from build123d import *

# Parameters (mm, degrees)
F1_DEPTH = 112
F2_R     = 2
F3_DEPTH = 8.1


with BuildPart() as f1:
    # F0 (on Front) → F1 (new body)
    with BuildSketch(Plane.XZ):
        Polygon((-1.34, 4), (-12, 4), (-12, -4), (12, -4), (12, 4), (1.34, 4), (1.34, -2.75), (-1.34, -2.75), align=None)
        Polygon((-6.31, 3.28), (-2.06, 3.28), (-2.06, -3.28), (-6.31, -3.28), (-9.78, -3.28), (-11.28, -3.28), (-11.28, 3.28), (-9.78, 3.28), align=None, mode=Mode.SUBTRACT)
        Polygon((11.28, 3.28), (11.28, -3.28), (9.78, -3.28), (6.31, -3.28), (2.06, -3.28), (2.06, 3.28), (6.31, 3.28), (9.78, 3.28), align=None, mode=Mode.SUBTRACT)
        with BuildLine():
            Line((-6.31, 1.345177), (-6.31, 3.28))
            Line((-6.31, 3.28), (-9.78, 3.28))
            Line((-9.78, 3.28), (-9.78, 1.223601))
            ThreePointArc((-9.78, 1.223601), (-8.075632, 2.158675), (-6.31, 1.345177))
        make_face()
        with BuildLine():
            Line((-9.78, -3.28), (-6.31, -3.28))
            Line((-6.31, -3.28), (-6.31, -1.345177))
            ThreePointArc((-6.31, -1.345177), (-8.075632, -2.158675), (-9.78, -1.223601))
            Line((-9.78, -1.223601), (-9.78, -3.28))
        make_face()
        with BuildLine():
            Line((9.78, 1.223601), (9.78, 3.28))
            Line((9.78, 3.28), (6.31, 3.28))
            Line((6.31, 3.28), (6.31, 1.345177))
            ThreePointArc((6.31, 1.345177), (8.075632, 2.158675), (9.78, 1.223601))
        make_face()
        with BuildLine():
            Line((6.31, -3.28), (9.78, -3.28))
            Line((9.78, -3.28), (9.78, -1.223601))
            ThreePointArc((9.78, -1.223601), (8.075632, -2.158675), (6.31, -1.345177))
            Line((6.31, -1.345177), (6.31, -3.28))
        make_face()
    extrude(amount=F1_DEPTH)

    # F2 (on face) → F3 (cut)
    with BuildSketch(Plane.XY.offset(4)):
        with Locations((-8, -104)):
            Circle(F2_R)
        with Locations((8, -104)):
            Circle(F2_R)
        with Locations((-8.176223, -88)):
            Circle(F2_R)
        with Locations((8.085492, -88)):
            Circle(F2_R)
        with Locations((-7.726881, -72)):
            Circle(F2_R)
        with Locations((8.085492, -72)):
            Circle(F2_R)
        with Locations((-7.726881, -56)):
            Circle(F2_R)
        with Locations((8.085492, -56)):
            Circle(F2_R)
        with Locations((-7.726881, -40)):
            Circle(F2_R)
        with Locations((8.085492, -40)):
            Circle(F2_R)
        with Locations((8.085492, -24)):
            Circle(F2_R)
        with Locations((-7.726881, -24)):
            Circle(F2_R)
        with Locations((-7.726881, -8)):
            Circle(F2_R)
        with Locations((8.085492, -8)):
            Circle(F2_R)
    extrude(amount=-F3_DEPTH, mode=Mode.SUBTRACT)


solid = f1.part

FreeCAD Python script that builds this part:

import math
import FreeCAD as App
import Part
import Sketcher
Q = App.Units.Quantity


def add_polygon(sketch, points):
    """Adds a closed chain of lines whose ends are joined by coincident constraints."""
    first, n = sketch.GeometryCount, len(points)
    for a, b in zip(points, points[1:] + points[:1]):
        sketch.addGeometry(Part.LineSegment(App.Vector(*a, 0), App.Vector(*b, 0)), False)
    for i in range(n):
        sketch.addConstraint(Sketcher.Constraint("Coincident", first + i, 2, first + (i + 1) % n, 1))

doc = App.newDocument("Part")
body = doc.addObject("PartDesign::Body", "Body")

sketch1 = body.newObject("Sketcher::SketchObject", "Sketch")
sketch1.AttachmentSupport = (doc.getObject("XZ_Plane"), [""])
sketch1.MapMode = "FlatFace"
add_polygon(sketch1, [(-1.3, 4), (-12, 4), (-12, -4), (12, -4), (12, 4), (1.3, 4), (1.3, -2.8), (-1.3, -2.8)])
sketch1.addGeometry(Part.LineSegment(App.Vector(-11.3, 3.3, 0), App.Vector(-9.8, 3.3, 0)), False)
sketch1.addGeometry(Part.LineSegment(App.Vector(-9.8, 3.3, 0), App.Vector(-9.8, 1.2, 0)), False)
sketch1.addGeometry(Part.ArcOfCircle(Part.Circle(App.Vector(-8, 0, 0), App.Vector(0, 0, 1), 2.2), math.radians(39), math.radians(145)), False)
sketch1.addGeometry(Part.LineSegment(App.Vector(-6.3, 1.3, 0), App.Vector(-6.3, 3.3, 0)), False)
sketch1.addGeometry(Part.LineSegment(App.Vector(-6.3, 3.3, 0), App.Vector(-2.1, 3.3, 0)), False)
sketch1.addGeometry(Part.LineSegment(App.Vector(-2.1, 3.3, 0), App.Vector(-2.1, -3.3, 0)), False)
sketch1.addGeometry(Part.LineSegment(App.Vector(-2.1, -3.3, 0), App.Vector(-6.3, -3.3, 0)), False)
sketch1.addGeometry(Part.LineSegment(App.Vector(-6.3, -3.3, 0), App.Vector(-6.3, -1.3, 0)), False)
sketch1.addGeometry(Part.ArcOfCircle(Part.Circle(App.Vector(-8, 0, 0), App.Vector(0, 0, 1), 2.2), math.radians(-145), math.radians(-39)), False)
sketch1.addGeometry(Part.LineSegment(App.Vector(-9.8, -1.2, 0), App.Vector(-9.8, -3.3, 0)), False)
sketch1.addGeometry(Part.LineSegment(App.Vector(-9.8, -3.3, 0), App.Vector(-11.3, -3.3, 0)), False)
sketch1.addGeometry(Part.LineSegment(App.Vector(-11.3, -3.3, 0), App.Vector(-11.3, 3.3, 0)), False)
sketch1.addGeometry(Part.LineSegment(App.Vector(2.1, 3.3, 0), App.Vector(6.3, 3.3, 0)), False)
sketch1.addGeometry(Part.LineSegment(App.Vector(6.3, 3.3, 0), App.Vector(6.3, 1.3, 0)), False)
sketch1.addGeometry(Part.ArcOfCircle(Part.Circle(App.Vector(8, 0, 0), App.Vector(0, 0, 1), 2.2), math.radians(35), math.radians(141)), False)
sketch1.addGeometry(Part.LineSegment(App.Vector(9.8, 1.2, 0), App.Vector(9.8, 3.3, 0)), False)
sketch1.addGeometry(Part.LineSegment(App.Vector(9.8, 3.3, 0), App.Vector(11.3, 3.3, 0)), False)
sketch1.addGeometry(Part.LineSegment(App.Vector(11.3, 3.3, 0), App.Vector(11.3, -3.3, 0)), False)
sketch1.addGeometry(Part.LineSegment(App.Vector(11.3, -3.3, 0), App.Vector(9.8, -3.3, 0)), False)
sketch1.addGeometry(Part.LineSegment(App.Vector(9.8, -3.3, 0), App.Vector(9.8, -1.2, 0)), False)
sketch1.addGeometry(Part.ArcOfCircle(Part.Circle(App.Vector(8, 0, 0), App.Vector(0, 0, 1), 2.2), math.radians(-141), math.radians(-35)), False)
sketch1.addGeometry(Part.LineSegment(App.Vector(6.3, -1.3, 0), App.Vector(6.3, -3.3, 0)), False)
sketch1.addGeometry(Part.LineSegment(App.Vector(6.3, -3.3, 0), App.Vector(2.1, -3.3, 0)), False)
sketch1.addGeometry(Part.LineSegment(App.Vector(2.1, -3.3, 0), App.Vector(2.1, 3.3, 0)), False)
sketch1.addConstraint([
    Sketcher.Constraint("Coincident", 8, 2, 9, 1),
    Sketcher.Constraint("Coincident", 9, 2, 10, 2),
    Sketcher.Constraint("Coincident", 10, 1, 11, 1),
    Sketcher.Constraint("Coincident", 11, 2, 12, 1),
    Sketcher.Constraint("Coincident", 12, 2, 13, 1),
    Sketcher.Constraint("Coincident", 13, 2, 14, 1),
    Sketcher.Constraint("Coincident", 14, 2, 15, 1),
    Sketcher.Constraint("Coincident", 15, 2, 16, 2),
    Sketcher.Constraint("Coincident", 16, 1, 17, 1),
    Sketcher.Constraint("Coincident", 17, 2, 18, 1),
    Sketcher.Constraint("Coincident", 18, 2, 19, 1),
    Sketcher.Constraint("Coincident", 19, 2, 8, 1),
    Sketcher.Constraint("Coincident", 20, 2, 21, 1),
    Sketcher.Constraint("Coincident", 21, 2, 22, 2),
    Sketcher.Constraint("Coincident", 22, 1, 23, 1),
    Sketcher.Constraint("Coincident", 23, 2, 24, 1),
    Sketcher.Constraint("Coincident", 24, 2, 25, 1),
    Sketcher.Constraint("Coincident", 25, 2, 26, 1),
    Sketcher.Constraint("Coincident", 26, 2, 27, 1),
    Sketcher.Constraint("Coincident", 27, 2, 28, 2),
    Sketcher.Constraint("Coincident", 28, 1, 29, 1),
    Sketcher.Constraint("Coincident", 29, 2, 30, 1),
    Sketcher.Constraint("Coincident", 30, 2, 31, 1),
    Sketcher.Constraint("Coincident", 31, 2, 20, 1),
    Sketcher.Constraint("Horizontal", 0),
    Sketcher.Constraint("Vertical", 1),
    Sketcher.Constraint("Horizontal", 2),
    Sketcher.Constraint("Vertical", 3),
    Sketcher.Constraint("Horizontal", 4),
    Sketcher.Constraint("Vertical", 5),
    Sketcher.Constraint("Horizontal", 6),
    Sketcher.Constraint("Vertical", 7),
    Sketcher.Constraint("Horizontal", 8),
    Sketcher.Constraint("Vertical", 9),
    Sketcher.Constraint("Vertical", 11),
    Sketcher.Constraint("Horizontal", 12),
    Sketcher.Constraint("Vertical", 13),
    Sketcher.Constraint("Horizontal", 14),
    Sketcher.Constraint("Vertical", 15),
    Sketcher.Constraint("Vertical", 17),
    Sketcher.Constraint("Horizontal", 18),
    Sketcher.Constraint("Vertical", 19),
    Sketcher.Constraint("Horizontal", 20),
    Sketcher.Constraint("Vertical", 21),
    Sketcher.Constraint("Vertical", 23),
    Sketcher.Constraint("Horizontal", 24),
    Sketcher.Constraint("Vertical", 25),
    Sketcher.Constraint("Horizontal", 26),
    Sketcher.Constraint("Vertical", 27),
    Sketcher.Constraint("Vertical", 29),
    Sketcher.Constraint("Horizontal", 30),
    Sketcher.Constraint("Vertical", 31),
    Sketcher.Constraint("Coincident", 16, 3, 10, 3),
    Sketcher.Constraint("Coincident", 28, 3, 22, 3),
    Sketcher.Constraint("Equal", 10, 16),
    Sketcher.Constraint("Equal", 16, 22),
    Sketcher.Constraint("Equal", 22, 28),
    Sketcher.Constraint("Symmetric", 10, 3, 22, 3, -1, 1),
    Sketcher.Constraint("Symmetric", 0, 2, 2, 2, -1, 1),
    Sketcher.Constraint("Symmetric", 14, 2, 20, 2, -1, 1),
    Sketcher.Constraint("Symmetric", 17, 2, 23, 2, -1, 1),
    Sketcher.Constraint("Symmetric", 19, 2, 25, 2, -1, 1),
    Sketcher.Constraint("Symmetric", 11, 2, 29, 2, -1, 1),
    Sketcher.Constraint("Symmetric", 4, 2, 7, 2, -2),
    Sketcher.Constraint("Symmetric", 11, 2, 20, 2, -2),
    Sketcher.Constraint("Symmetric", 9, 2, 22, 1, -2),
    Sketcher.Constraint("Symmetric", 17, 2, 26, 2, -2),
    Sketcher.Constraint("Horizontal", 8, 2, 11, 2),
    Sketcher.Constraint("Equal", 14, 20),
    Sketcher.Constraint("DistanceX", 2, 1, 2, 2, Q("24 mm")),
    Sketcher.Constraint("DistanceY", 1, 2, 1, 1, Q("8 mm")),
    Sketcher.Constraint("Radius", 10, Q("2.160001 mm")),
    Sketcher.Constraint("DistanceX", 8, 1, 8, 2, Q("1.5 mm")),
    Sketcher.Constraint("DistanceX", 10, 3, -1, 1, Q("8 mm")),
    Sketcher.Constraint("DistanceX", 0, 2, 0, 1, Q("10.66 mm")),
    Sketcher.Constraint("DistanceX", 12, 1, 12, 2, Q("4.25 mm")),
    Sketcher.Constraint("DistanceY", 5, 2, 5, 1, Q("6.75 mm")),
    Sketcher.Constraint("DistanceY", 13, 2, 13, 1, Q("6.56 mm")),
    Sketcher.Constraint("DistanceX", 12, 2, 4, 2, Q("3.4 mm")),
    Sketcher.Constraint("DistanceX", 8, 2, -1, 1, Q("9.78 mm")),
])
pad1 = body.newObject("PartDesign::Pad", "Pad")
pad1.Profile = sketch1
pad1.Length = 112

sketch2 = body.newObject("Sketcher::SketchObject", "Sketch001")
sketch2.AttachmentSupport = (doc.getObject("XY_Plane"), [""])
sketch2.MapMode = "FlatFace"
sketch2.AttachmentOffset = App.Placement(App.Vector(0, 0, 4), App.Rotation())
sketch2.addGeometry([
    Part.Circle(App.Vector(-8, -104, 0), App.Vector(0, 0, 1), 2),
    Part.Circle(App.Vector(8, -104, 0), App.Vector(0, 0, 1), 2),
    Part.Circle(App.Vector(-8.2, -88, 0), App.Vector(0, 0, 1), 2),
    Part.Circle(App.Vector(8.1, -88, 0), App.Vector(0, 0, 1), 2),
    Part.Circle(App.Vector(-7.7, -72, 0), App.Vector(0, 0, 1), 2),
    Part.Circle(App.Vector(8.1, -72, 0), App.Vector(0, 0, 1), 2),
    Part.Circle(App.Vector(-7.7, -56, 0), App.Vector(0, 0, 1), 2),
    Part.Circle(App.Vector(8.1, -56, 0), App.Vector(0, 0, 1), 2),
    Part.Circle(App.Vector(-7.7, -40, 0), App.Vector(0, 0, 1), 2),
    Part.Circle(App.Vector(8.1, -40, 0), App.Vector(0, 0, 1), 2),
    Part.Circle(App.Vector(8.1, -24, 0), App.Vector(0, 0, 1), 2),
    Part.Circle(App.Vector(-7.7, -24, 0), App.Vector(0, 0, 1), 2),
    Part.Circle(App.Vector(-7.7, -8, 0), App.Vector(0, 0, 1), 2),
    Part.Circle(App.Vector(8.1, -8, 0), App.Vector(0, 0, 1), 2),
], False)
sketch2.addConstraint([
    Sketcher.Constraint("Equal", 0, 1),
    Sketcher.Constraint("Equal", 1, 2),
    Sketcher.Constraint("Equal", 2, 3),
    Sketcher.Constraint("Equal", 3, 4),
    Sketcher.Constraint("Equal", 4, 5),
    Sketcher.Constraint("Equal", 5, 6),
    Sketcher.Constraint("Equal", 6, 7),
    Sketcher.Constraint("Equal", 7, 8),
    Sketcher.Constraint("Equal", 8, 9),
    Sketcher.Constraint("Equal", 9, 10),
    Sketcher.Constraint("Equal", 10, 11),
    Sketcher.Constraint("Equal", 11, 12),
    Sketcher.Constraint("Equal", 12, 13),
    Sketcher.Constraint("Symmetric", 0, 3, 1, 3, -2),
    Sketcher.Constraint("Horizontal", 2, 3, 3, 3),
    Sketcher.Constraint("Horizontal", 4, 3, 5, 3),
    Sketcher.Constraint("Horizontal", 6, 3, 7, 3),
    Sketcher.Constraint("Horizontal", 8, 3, 9, 3),
    Sketcher.Constraint("Horizontal", 10, 3, 11, 3),
    Sketcher.Constraint("Horizontal", 12, 3, 13, 3),
    Sketcher.Constraint("Vertical", 3, 3, 5, 3),
    Sketcher.Constraint("Vertical", 4, 3, 6, 3),
    Sketcher.Constraint("Vertical", 5, 3, 7, 3),
    Sketcher.Constraint("Vertical", 6, 3, 8, 3),
    Sketcher.Constraint("Vertical", 7, 3, 9, 3),
    Sketcher.Constraint("Vertical", 9, 3, 10, 3),
    Sketcher.Constraint("Vertical", 8, 3, 11, 3),
    Sketcher.Constraint("Vertical", 11, 3, 12, 3),
    Sketcher.Constraint("Vertical", 10, 3, 13, 3),
    Sketcher.Constraint("Diameter", 0, Q("4 mm")),
    Sketcher.Constraint("DistanceX", 0, 3, -1, 1, Q("8 mm")),
    Sketcher.Constraint("DistanceY", 0, 3, -1, 1, Q("104 mm")),
    Sketcher.Constraint("DistanceY", 2, 3, -1, 1, Q("88 mm")),
    Sketcher.Constraint("DistanceY", 4, 3, -1, 1, Q("72 mm")),
    Sketcher.Constraint("DistanceY", 6, 3, -1, 1, Q("56 mm")),
    Sketcher.Constraint("DistanceY", 8, 3, -1, 1, Q("40 mm")),
    Sketcher.Constraint("DistanceY", 10, 3, -1, 1, Q("24 mm")),
    Sketcher.Constraint("DistanceY", 12, 3, -1, 1, Q("8 mm")),
    Sketcher.Constraint("DistanceX", 4, 3, -1, 1, Q("7.726881 mm")),
    Sketcher.Constraint("DistanceX", 2, 3, -1, 1, Q("8.176223 mm")),
    Sketcher.Constraint("DistanceX", -1, 1, 3, 3, Q("8.085492 mm")),
])
pocket1 = body.newObject("PartDesign::Pocket", "Pocket")
pocket1.Profile = sketch2
pocket1.Length = 8.1

doc.recompute()
